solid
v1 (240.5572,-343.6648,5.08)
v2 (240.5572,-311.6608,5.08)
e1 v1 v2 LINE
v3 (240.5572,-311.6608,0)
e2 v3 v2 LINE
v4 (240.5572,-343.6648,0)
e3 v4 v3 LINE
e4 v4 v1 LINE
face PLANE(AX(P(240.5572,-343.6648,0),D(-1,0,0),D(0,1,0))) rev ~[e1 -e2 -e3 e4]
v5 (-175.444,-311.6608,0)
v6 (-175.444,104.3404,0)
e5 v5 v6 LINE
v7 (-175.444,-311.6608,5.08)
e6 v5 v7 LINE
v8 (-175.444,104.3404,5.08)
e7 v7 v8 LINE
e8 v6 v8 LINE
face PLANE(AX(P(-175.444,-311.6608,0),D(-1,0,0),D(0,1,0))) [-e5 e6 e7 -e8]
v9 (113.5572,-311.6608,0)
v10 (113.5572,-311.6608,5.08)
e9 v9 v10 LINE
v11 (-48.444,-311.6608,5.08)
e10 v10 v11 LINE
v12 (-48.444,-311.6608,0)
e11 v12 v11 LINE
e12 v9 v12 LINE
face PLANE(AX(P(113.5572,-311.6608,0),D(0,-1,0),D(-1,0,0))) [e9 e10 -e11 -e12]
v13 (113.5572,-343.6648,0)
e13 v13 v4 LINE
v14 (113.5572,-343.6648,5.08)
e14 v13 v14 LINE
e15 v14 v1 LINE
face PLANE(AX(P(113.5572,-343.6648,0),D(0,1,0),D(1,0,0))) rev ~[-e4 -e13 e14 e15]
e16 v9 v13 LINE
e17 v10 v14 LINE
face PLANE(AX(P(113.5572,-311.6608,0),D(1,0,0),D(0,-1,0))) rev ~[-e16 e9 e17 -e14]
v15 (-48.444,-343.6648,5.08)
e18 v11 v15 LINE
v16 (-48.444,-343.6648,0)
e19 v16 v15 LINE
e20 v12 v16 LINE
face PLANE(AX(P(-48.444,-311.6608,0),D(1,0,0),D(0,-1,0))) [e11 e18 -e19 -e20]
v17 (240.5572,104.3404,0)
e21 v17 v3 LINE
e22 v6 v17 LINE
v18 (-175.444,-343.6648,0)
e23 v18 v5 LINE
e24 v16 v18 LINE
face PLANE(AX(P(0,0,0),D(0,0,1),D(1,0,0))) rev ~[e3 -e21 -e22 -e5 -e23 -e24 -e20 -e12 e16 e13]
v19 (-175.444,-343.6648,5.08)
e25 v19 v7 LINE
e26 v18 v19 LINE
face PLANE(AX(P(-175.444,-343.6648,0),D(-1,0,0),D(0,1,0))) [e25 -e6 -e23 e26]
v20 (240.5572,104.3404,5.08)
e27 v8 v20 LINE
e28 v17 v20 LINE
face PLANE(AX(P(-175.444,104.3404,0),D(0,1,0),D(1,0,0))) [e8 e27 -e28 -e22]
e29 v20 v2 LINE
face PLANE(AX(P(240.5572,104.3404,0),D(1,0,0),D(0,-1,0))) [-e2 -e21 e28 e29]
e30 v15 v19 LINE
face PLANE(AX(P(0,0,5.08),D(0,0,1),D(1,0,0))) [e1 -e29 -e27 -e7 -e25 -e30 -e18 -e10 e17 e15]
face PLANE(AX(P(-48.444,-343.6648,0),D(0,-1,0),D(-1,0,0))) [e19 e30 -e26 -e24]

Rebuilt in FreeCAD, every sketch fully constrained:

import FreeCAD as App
import Part
import Sketcher

V = App.Vector
Q = App.Units.Quantity

doc = App.newDocument("Part")
body = doc.addObject("PartDesign::Body", "Body")

sketch1 = doc.addObject("Sketcher::SketchObject", "Sketch")
body.addObject(sketch1)
sketch1.AttachmentSupport = (doc.XY_Plane, [""])
sketch1.MapMode = "FlatFace"
sketch1.addGeometry([
    Part.LineSegment(V(241, 104, 0), V(-175, 104, 0)),
    Part.LineSegment(V(-175, 104, 0), V(-175, -344, 0)),
    Part.LineSegment(V(-175, -344, 0), V(-48, -344, 0)),
    Part.LineSegment(V(-48, -344, 0), V(-48, -312, 0)),
    Part.LineSegment(V(-48, -312, 0), V(114, -312, 0)),
    Part.LineSegment(V(114, -312, 0), V(114, -344, 0)),
    Part.LineSegment(V(114, -344, 0), V(241, -344, 0)),
    Part.LineSegment(V(241, -344, 0), V(241, 104, 0)),
], False)
sketch1.addConstraint([
    Sketcher.Constraint("Coincident", 0, 2, 1, 1),
    Sketcher.Constraint("Coincident", 1, 2, 2, 1),
    Sketcher.Constraint("Coincident", 2, 2, 3, 1),
    Sketcher.Constraint("Coincident", 3, 2, 4, 1),
    Sketcher.Constraint("Coincident", 4, 2, 5, 1),
    Sketcher.Constraint("Coincident", 5, 2, 6, 1),
    Sketcher.Constraint("Coincident", 6, 2, 7, 1),
    Sketcher.Constraint("Coincident", 7, 2, 0, 1),
    Sketcher.Constraint("Horizontal", 0),
    Sketcher.Constraint("Vertical", 1),
    Sketcher.Constraint("Horizontal", 2),
    Sketcher.Constraint("Vertical", 3),
    Sketcher.Constraint("Horizontal", 4),
    Sketcher.Constraint("Vertical", 5),
    Sketcher.Constraint("Horizontal", 6),
    Sketcher.Constraint("Vertical", 7),
    Sketcher.Constraint("Horizontal", 2, 2, 5, 2),
    Sketcher.Constraint("Equal", 2, 6),
    Sketcher.Constraint("DistanceX", 2, 1, 2, 2, Q("5 in")),
    Sketcher.Constraint("DistanceY", 3, 1, 3, 2, Q("1.26 in")),
    Sketcher.Constraint("DistanceX", 0, 2, 0, 1, Q("16.378 in")),
    Sketcher.Constraint("DistanceY", 3, 2, 0, 2, Q("16.378 in")),
    Sketcher.Constraint("DistanceY", -1, 1, 0, 2, Q("4.1079 in")),
    Sketcher.Constraint("DistanceX", 0, 2, -1, 1, 175.444),
])
pad1 = doc.addObject("PartDesign::Pad", "Pad")
body.addObject(pad1)
pad1.Profile = sketch1
pad1.Length = Q("0.2 in")

doc.recompute()
